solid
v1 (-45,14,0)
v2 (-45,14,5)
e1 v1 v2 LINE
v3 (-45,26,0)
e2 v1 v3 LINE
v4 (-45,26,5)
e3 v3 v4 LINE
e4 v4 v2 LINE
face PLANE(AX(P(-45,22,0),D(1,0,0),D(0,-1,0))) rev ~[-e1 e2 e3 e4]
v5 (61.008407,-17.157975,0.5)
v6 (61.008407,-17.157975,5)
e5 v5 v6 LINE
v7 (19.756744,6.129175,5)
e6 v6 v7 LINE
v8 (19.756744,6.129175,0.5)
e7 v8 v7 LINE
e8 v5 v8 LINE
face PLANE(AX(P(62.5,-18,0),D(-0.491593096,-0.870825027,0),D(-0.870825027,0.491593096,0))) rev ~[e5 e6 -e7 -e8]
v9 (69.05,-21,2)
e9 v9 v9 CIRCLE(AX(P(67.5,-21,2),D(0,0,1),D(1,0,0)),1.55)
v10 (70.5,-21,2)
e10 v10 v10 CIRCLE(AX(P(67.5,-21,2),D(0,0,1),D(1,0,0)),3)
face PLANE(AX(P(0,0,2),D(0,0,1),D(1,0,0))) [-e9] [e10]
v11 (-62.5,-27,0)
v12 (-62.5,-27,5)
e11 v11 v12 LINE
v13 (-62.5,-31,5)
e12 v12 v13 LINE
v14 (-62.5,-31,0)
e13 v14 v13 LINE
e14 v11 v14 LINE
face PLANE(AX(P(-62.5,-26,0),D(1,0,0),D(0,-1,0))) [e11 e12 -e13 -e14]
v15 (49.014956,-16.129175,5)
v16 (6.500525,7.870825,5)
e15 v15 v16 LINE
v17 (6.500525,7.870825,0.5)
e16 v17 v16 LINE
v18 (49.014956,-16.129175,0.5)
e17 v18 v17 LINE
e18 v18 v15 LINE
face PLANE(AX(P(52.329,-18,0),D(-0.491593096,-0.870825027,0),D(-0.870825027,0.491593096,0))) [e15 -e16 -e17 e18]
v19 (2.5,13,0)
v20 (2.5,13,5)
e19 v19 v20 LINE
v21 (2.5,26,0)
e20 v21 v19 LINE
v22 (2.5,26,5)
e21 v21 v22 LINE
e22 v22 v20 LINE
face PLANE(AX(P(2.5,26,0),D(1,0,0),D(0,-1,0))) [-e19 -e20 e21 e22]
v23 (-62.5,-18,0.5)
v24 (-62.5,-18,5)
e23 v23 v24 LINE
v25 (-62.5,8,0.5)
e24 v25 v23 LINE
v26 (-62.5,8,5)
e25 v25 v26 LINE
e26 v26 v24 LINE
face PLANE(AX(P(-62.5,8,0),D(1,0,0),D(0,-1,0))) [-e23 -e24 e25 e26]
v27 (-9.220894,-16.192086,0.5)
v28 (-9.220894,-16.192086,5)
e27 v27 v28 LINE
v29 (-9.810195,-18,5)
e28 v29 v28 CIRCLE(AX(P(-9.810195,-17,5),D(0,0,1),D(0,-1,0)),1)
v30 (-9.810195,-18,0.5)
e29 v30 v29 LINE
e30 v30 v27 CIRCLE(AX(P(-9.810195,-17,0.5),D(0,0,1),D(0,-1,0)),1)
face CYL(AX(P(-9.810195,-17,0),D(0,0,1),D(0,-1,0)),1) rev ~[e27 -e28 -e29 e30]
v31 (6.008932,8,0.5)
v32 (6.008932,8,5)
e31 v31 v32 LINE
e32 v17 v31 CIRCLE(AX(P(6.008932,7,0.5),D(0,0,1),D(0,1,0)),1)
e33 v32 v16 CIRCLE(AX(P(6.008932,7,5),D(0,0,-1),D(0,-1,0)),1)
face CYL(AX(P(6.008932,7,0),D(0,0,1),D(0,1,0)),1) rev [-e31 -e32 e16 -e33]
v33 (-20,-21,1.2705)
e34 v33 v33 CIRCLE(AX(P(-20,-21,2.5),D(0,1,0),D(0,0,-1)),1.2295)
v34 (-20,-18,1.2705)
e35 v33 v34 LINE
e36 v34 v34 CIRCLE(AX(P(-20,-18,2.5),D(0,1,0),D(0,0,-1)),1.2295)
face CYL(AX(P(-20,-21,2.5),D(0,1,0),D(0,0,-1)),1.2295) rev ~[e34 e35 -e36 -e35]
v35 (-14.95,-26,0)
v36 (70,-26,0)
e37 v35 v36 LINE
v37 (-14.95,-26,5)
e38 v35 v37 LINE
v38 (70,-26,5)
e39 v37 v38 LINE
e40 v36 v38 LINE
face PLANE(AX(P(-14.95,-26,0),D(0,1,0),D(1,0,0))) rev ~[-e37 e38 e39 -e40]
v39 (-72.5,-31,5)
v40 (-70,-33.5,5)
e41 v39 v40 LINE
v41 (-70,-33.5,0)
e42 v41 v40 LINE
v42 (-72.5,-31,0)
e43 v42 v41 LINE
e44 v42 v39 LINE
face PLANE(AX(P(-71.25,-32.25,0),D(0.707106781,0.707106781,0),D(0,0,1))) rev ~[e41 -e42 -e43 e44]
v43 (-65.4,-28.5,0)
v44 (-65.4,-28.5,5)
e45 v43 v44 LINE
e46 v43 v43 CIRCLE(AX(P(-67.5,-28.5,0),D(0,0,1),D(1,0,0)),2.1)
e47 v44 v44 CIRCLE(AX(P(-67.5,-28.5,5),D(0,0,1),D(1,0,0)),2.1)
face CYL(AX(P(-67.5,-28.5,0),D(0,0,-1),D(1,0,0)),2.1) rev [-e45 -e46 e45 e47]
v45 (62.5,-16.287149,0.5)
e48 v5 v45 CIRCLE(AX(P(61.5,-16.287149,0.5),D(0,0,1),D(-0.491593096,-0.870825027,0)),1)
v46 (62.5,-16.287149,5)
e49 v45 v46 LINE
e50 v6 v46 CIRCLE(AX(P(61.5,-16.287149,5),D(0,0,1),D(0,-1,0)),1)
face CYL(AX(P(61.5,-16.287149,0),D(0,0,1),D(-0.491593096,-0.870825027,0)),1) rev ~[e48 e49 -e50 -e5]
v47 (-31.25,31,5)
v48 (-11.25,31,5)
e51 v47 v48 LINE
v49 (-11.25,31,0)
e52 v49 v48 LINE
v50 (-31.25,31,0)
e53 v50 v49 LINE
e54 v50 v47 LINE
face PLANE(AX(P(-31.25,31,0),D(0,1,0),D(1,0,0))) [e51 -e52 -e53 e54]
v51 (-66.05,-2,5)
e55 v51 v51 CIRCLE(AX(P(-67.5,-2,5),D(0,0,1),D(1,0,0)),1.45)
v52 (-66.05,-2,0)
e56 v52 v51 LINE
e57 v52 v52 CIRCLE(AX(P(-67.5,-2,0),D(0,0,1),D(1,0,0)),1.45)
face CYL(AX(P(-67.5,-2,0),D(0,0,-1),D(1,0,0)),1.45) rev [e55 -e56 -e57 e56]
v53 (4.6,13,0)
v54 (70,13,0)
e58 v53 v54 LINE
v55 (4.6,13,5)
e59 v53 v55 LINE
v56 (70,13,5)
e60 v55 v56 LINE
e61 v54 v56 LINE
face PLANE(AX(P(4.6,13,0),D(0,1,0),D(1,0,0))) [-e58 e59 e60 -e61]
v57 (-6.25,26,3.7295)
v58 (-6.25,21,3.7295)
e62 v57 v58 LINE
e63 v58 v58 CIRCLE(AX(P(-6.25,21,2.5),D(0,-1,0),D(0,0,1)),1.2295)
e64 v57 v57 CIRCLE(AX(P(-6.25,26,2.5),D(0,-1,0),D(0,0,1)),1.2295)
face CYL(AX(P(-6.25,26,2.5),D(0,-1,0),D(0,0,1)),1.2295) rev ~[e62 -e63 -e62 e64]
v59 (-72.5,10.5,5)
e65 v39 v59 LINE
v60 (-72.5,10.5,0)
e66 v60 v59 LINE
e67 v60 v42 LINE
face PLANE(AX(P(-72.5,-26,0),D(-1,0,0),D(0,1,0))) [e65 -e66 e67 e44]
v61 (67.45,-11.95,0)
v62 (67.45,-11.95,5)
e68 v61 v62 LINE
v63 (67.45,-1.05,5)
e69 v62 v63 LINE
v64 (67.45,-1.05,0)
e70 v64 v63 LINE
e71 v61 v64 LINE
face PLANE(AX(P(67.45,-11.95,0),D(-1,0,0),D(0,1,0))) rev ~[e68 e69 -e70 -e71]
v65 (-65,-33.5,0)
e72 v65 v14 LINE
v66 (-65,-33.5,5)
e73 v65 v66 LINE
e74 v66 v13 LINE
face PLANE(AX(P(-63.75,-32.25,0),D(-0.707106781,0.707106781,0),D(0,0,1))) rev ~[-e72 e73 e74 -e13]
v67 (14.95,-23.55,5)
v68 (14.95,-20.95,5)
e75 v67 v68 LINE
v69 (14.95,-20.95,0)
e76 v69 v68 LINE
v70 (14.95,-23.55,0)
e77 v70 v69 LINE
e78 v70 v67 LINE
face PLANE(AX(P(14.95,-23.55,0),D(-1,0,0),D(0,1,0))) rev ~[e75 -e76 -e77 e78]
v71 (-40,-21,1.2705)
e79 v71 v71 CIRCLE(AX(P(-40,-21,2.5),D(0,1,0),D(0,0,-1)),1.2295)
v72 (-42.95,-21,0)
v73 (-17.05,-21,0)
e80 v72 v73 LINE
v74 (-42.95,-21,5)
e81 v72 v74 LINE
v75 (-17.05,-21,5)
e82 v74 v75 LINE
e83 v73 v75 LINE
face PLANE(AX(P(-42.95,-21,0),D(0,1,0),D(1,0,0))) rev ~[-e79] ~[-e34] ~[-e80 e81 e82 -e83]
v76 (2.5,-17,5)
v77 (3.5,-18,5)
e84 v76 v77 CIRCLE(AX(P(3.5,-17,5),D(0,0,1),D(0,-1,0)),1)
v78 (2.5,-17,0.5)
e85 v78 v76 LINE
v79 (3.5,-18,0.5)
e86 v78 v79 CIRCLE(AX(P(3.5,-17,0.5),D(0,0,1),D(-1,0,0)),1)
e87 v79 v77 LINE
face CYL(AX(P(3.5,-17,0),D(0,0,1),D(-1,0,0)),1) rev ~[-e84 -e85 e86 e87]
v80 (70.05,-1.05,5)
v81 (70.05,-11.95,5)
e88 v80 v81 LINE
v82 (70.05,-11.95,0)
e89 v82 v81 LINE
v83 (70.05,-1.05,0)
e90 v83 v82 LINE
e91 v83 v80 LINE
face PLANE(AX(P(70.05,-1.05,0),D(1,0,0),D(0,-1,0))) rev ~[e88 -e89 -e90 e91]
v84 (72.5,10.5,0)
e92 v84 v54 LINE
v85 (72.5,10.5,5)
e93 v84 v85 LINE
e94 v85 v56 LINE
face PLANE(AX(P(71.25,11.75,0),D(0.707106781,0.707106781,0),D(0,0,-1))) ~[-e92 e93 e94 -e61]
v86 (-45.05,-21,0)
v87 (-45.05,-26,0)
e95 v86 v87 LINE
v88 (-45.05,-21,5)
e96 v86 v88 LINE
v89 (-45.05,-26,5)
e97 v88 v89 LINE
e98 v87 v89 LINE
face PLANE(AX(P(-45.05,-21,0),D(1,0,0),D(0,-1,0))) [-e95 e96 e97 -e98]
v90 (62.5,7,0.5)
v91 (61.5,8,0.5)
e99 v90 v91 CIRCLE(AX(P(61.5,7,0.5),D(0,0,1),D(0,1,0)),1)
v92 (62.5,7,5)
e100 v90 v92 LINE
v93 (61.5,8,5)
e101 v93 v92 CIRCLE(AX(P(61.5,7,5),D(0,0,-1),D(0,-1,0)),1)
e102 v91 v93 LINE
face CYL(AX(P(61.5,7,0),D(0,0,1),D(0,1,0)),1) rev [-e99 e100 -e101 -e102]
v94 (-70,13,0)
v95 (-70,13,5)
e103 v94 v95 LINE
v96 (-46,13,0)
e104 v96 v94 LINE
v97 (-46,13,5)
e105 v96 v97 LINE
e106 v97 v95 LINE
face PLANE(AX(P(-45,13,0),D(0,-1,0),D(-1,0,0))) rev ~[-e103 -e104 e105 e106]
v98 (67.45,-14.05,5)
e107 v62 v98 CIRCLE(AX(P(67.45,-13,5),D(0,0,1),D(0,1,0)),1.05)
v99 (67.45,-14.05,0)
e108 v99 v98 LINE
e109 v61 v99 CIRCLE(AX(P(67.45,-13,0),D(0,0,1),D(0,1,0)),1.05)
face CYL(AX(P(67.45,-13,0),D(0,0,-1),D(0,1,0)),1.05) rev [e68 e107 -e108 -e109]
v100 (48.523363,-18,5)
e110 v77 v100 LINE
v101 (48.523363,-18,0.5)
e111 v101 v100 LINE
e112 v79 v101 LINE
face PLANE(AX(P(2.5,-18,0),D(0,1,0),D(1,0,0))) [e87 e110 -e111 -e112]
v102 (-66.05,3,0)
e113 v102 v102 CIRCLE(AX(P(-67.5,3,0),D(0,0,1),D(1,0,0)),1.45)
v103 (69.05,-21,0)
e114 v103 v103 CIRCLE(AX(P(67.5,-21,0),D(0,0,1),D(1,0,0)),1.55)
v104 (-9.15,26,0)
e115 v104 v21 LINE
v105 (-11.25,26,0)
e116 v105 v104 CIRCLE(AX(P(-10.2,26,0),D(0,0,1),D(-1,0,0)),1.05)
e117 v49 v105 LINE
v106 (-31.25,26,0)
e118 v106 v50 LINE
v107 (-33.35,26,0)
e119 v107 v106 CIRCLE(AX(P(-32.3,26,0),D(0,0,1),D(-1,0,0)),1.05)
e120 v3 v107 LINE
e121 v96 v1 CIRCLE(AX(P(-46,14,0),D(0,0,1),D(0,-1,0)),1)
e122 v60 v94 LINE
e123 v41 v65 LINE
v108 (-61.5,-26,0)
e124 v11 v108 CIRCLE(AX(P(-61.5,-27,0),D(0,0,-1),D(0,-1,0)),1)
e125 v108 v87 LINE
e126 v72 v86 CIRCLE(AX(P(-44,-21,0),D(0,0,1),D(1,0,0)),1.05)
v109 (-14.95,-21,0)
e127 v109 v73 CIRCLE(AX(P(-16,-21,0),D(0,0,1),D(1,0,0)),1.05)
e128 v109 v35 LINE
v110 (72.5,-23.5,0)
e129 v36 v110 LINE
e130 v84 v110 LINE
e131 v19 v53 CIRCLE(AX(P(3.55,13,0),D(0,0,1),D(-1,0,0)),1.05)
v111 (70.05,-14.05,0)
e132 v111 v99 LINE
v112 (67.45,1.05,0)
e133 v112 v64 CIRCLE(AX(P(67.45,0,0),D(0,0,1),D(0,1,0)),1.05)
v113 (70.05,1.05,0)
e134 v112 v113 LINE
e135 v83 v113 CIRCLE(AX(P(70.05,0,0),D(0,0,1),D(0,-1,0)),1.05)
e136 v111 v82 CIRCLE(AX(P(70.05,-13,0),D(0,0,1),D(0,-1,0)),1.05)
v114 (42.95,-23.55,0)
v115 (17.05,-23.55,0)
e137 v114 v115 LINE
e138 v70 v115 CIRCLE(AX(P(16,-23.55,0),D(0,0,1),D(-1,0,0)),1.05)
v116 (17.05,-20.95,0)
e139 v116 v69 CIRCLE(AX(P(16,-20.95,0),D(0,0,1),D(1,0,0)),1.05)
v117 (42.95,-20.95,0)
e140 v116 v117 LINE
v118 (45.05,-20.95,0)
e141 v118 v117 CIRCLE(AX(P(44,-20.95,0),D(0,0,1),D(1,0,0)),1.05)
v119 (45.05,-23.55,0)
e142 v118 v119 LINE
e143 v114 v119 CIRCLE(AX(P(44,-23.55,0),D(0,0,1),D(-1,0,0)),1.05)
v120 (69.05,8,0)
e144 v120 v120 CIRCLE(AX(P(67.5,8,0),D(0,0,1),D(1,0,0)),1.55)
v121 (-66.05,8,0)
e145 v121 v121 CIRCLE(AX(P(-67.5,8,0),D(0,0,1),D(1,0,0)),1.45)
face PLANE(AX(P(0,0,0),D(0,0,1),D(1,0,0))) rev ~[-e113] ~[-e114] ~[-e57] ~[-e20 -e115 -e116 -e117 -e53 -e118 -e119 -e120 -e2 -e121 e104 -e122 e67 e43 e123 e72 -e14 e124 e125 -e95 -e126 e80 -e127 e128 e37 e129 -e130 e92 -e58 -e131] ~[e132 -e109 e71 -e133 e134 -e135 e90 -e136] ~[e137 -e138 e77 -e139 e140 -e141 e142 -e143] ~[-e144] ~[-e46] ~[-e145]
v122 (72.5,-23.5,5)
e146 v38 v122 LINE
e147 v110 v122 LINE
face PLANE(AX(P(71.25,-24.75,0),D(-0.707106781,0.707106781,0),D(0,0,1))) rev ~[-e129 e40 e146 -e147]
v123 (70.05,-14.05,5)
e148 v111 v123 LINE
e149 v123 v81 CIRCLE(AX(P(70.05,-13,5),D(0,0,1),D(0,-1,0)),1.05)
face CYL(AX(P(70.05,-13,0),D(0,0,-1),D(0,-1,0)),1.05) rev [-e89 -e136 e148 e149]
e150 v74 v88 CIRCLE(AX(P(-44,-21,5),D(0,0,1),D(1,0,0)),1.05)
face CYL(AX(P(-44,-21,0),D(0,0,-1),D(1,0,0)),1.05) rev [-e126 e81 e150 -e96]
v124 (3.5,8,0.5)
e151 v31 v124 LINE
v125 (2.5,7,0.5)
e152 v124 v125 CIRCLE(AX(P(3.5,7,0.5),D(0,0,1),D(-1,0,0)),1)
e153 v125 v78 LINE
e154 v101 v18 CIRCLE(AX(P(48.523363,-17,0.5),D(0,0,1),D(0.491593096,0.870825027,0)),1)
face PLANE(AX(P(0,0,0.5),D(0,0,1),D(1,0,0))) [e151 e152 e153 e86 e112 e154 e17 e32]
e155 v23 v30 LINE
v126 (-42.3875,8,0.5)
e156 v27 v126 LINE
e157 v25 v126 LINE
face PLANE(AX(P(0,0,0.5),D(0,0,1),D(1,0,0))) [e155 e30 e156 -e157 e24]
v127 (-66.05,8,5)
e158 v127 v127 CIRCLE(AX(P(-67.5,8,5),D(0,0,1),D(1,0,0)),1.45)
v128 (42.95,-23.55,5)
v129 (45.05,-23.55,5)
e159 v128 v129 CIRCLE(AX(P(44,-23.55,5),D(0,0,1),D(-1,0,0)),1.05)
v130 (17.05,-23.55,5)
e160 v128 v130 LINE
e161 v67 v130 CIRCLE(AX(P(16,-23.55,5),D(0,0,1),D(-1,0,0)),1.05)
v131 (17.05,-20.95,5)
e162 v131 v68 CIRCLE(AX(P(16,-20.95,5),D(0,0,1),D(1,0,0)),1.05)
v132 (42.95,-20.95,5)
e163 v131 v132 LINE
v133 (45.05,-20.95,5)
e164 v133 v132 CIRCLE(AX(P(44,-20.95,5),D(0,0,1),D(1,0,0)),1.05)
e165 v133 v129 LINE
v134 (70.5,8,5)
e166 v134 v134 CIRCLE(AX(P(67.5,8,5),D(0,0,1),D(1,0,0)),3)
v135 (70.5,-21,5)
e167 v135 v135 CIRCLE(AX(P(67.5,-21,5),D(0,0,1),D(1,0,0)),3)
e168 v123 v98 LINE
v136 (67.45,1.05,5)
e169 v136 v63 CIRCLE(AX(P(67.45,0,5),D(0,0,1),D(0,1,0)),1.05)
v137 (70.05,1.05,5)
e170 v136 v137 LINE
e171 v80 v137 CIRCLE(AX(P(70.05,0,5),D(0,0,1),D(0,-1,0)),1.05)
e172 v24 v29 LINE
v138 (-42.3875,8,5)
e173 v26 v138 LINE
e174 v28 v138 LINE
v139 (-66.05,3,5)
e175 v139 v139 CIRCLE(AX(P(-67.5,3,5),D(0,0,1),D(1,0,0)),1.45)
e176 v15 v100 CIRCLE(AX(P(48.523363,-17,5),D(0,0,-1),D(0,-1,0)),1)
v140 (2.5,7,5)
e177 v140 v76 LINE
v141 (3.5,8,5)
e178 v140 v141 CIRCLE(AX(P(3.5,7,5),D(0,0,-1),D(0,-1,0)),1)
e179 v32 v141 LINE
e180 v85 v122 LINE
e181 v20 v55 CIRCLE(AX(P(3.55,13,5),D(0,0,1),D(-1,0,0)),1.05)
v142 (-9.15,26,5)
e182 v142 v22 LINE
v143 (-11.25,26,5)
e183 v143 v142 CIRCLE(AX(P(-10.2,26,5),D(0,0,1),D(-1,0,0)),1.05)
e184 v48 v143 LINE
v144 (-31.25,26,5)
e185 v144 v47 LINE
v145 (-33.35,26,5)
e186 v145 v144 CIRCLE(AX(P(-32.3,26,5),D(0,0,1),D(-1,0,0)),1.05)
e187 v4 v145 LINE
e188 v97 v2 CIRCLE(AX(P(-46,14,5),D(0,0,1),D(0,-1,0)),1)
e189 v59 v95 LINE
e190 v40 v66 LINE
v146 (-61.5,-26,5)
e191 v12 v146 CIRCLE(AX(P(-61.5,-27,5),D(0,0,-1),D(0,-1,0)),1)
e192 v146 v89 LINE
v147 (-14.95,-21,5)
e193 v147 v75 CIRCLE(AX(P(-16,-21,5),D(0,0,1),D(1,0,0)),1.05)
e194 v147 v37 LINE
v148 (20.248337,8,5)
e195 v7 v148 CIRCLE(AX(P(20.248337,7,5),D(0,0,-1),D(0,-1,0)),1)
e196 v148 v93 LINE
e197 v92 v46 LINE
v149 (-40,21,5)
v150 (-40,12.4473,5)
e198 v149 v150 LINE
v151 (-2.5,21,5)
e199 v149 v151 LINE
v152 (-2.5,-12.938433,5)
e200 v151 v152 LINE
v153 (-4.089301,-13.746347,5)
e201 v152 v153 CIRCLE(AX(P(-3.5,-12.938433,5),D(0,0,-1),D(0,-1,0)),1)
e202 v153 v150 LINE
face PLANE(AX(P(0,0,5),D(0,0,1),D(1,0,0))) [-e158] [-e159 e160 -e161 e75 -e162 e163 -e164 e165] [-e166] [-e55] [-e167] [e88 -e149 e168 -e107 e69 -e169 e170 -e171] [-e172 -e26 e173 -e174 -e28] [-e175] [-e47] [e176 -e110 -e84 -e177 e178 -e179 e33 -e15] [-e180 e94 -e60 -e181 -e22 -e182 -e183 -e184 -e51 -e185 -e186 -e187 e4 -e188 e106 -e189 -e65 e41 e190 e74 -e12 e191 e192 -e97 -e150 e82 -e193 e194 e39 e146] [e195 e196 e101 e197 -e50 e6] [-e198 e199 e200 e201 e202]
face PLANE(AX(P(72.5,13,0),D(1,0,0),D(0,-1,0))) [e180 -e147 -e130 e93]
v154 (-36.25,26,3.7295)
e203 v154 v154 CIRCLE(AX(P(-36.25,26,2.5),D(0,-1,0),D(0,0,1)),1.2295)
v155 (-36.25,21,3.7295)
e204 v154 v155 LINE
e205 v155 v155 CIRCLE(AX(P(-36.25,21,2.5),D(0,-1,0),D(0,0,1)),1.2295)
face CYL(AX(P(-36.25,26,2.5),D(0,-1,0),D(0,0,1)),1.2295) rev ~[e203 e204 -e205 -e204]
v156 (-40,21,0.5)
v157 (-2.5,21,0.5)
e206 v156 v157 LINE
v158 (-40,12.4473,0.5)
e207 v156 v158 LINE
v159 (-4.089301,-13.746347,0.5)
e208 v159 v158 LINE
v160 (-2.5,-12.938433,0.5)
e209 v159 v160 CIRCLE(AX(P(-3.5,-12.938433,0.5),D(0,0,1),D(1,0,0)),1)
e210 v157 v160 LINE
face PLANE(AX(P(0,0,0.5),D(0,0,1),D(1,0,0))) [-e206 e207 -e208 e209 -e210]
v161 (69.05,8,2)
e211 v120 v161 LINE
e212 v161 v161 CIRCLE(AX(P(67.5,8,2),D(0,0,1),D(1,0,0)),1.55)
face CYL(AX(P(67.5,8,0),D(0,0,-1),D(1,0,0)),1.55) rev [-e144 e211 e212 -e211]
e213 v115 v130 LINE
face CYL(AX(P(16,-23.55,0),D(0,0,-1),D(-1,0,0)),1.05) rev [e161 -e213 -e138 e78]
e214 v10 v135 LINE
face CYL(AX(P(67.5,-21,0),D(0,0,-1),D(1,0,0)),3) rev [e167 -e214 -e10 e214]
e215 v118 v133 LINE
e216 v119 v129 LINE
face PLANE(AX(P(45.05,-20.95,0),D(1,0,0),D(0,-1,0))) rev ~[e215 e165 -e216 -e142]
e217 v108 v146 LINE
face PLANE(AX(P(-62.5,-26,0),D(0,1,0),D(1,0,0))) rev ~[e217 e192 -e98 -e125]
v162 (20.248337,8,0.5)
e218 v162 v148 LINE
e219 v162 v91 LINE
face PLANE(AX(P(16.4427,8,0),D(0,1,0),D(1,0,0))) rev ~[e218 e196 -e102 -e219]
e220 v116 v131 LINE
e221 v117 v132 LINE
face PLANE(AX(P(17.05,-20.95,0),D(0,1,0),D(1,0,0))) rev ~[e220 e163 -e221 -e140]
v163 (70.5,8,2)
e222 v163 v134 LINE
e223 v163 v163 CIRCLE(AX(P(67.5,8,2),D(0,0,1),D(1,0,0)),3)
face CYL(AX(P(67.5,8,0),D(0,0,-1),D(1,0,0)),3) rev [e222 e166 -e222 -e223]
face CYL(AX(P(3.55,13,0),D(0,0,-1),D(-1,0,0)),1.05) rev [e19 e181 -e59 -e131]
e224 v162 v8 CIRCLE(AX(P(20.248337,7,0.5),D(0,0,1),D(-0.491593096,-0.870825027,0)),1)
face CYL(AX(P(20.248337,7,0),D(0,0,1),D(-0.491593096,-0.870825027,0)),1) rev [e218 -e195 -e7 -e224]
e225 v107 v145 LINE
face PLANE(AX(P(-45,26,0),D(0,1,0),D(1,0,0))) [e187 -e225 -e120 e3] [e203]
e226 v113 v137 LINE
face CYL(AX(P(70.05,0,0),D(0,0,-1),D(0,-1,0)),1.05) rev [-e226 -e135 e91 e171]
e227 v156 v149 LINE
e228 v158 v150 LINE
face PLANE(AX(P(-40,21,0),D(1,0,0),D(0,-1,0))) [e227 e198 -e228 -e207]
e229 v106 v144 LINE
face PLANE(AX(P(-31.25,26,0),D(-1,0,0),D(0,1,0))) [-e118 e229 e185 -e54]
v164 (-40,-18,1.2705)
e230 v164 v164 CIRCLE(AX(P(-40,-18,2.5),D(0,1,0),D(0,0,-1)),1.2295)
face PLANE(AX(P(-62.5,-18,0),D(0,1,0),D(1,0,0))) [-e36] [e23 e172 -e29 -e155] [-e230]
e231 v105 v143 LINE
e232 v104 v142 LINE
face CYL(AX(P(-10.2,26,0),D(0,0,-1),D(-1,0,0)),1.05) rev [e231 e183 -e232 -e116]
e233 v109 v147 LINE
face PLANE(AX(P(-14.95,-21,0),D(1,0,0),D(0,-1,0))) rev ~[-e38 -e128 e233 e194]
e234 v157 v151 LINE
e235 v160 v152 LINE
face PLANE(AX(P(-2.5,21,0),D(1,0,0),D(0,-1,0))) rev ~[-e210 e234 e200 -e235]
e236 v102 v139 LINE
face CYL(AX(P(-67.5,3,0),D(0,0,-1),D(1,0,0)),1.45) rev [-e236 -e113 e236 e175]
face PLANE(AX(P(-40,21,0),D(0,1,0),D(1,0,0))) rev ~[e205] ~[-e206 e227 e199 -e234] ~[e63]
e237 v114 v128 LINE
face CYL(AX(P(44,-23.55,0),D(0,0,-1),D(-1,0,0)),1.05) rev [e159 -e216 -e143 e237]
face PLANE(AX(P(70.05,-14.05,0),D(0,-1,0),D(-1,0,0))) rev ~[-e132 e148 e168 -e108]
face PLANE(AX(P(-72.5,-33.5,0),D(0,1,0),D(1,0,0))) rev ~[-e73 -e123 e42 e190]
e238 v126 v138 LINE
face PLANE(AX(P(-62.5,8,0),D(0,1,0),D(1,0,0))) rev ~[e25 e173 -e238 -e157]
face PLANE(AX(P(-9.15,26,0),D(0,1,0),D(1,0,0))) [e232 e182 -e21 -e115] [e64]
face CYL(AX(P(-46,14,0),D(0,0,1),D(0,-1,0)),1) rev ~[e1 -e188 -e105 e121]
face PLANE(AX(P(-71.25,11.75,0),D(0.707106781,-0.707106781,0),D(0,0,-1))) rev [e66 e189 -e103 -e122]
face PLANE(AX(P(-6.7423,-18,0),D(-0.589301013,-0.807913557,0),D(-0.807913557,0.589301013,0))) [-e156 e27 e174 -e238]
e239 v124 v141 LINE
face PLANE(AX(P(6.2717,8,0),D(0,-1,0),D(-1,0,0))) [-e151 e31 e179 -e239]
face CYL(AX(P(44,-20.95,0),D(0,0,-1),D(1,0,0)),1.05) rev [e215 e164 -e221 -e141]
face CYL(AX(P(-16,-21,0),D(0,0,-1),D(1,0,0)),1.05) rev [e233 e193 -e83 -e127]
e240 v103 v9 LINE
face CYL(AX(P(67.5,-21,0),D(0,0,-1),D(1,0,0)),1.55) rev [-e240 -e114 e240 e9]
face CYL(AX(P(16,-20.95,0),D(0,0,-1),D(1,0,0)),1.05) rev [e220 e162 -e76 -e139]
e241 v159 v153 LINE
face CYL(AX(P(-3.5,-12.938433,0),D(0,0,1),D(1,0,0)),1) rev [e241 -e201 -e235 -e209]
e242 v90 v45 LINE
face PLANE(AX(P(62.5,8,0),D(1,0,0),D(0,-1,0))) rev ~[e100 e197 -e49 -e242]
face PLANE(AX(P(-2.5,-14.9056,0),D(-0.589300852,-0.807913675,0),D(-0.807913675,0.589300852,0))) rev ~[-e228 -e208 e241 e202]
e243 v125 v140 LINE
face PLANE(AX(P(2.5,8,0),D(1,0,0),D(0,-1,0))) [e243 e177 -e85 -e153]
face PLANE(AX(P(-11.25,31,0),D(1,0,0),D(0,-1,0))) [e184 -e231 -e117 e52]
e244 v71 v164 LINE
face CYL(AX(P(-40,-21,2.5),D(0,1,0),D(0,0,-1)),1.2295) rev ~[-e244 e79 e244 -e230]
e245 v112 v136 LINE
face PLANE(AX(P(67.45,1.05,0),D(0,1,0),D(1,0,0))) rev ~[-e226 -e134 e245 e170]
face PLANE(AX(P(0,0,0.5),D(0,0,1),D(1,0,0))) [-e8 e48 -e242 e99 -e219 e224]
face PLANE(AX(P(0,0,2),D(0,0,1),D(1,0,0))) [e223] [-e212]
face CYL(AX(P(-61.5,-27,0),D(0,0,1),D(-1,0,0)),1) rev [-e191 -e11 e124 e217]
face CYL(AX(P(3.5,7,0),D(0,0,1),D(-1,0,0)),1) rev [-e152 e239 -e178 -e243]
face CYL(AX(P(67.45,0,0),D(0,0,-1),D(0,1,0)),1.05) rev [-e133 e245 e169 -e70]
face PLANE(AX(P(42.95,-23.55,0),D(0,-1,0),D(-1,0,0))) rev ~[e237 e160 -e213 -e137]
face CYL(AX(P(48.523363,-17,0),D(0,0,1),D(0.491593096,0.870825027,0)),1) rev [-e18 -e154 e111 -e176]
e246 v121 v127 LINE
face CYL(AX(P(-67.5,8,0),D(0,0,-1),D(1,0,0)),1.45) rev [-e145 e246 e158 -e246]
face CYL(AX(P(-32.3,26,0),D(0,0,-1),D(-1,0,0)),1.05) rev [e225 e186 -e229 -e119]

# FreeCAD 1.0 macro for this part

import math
import FreeCAD as App
import Part
import Sketcher

V = App.Vector
Q = App.Units.Quantity


def edges_at(feature, points):
    """Names of the edges that pass closest to the given points."""
    edges = feature.Shape.Edges
    near = lambda p: min(range(len(edges)), key=lambda i: edges[i].distToShape(Part.Vertex(*p))[0])
    return sorted({f"Edge{near(p) + 1}" for p in points})

doc = App.newDocument("Part")
body = doc.addObject("PartDesign::Body", "Body")

sketch1 = body.newObject("Sketcher::SketchObject", "Sketch")
sketch1.AttachmentSupport = (doc.getObject("XY_Plane"), [""])
sketch1.MapMode = "FlatFace"
sketch1.addGeometry(Part.LineSegment(V(-72.5, 13, 0), V(-72.5, -33.5, 0)), False)
sketch1.addGeometry(Part.LineSegment(V(-72.5, -33.5, 0), V(-62.5, -33.5, 0)), False)
sketch1.addGeometry(Part.LineSegment(V(-62.5, -33.5, 0), V(-62.5, -26, 0)), False)
sketch1.addGeometry(Part.LineSegment(V(-62.5, -26, 0), V(-45, -26, 0)), False)
sketch1.addGeometry(Part.LineSegment(V(-45, -26, 0), V(-45, -21, 0)), False)
sketch1.addGeometry(Part.ArcOfCircle(Part.Circle(V(-44, -21, 0), V(0, 0, 1), 1), math.radians(0), math.radians(180)), False)
sketch1.addGeometry(Part.LineSegment(V(-43, -21, 0), V(-17.1, -21, 0)), False)
sketch1.addGeometry(Part.ArcOfCircle(Part.Circle(V(-16, -21, 0), V(0, 0, 1), 1.1), math.radians(0), math.radians(180)), False)
sketch1.addGeometry(Part.LineSegment(V(-14.9, -21, 0), V(-14.9, -26, 0)), False)
sketch1.addGeometry(Part.LineSegment(V(-14.9, -26, 0), V(72.5, -26, 0)), False)
sketch1.addGeometry(Part.LineSegment(V(72.5, -26, 0), V(72.5, 13, 0)), False)
sketch1.addGeometry(Part.LineSegment(V(72.5, 13, 0), V(4.6, 13, 0)), False)
sketch1.addGeometry(Part.ArcOfCircle(Part.Circle(V(3.5, 13, 0), V(0, 0, 1), 1), math.radians(180), math.radians(360)), False)
sketch1.addGeometry(Part.LineSegment(V(2.5, 13, 0), V(2.5, 26, 0)), False)
sketch1.addGeometry(Part.LineSegment(V(2.5, 26, 0), V(-9.2, 26, 0)), False)
sketch1.addGeometry(Part.ArcOfCircle(Part.Circle(V(-10.2, 26, 0), V(0, 0, 1), 1.1), math.radians(180), math.radians(360)), False)
sketch1.addGeometry(Part.LineSegment(V(-11.2, 26, 0), V(-11.2, 31, 0)), False)
sketch1.addGeometry(Part.LineSegment(V(-11.2, 31, 0), V(-31.2, 31, 0)), False)
sketch1.addGeometry(Part.LineSegment(V(-31.2, 31, 0), V(-31.2, 26, 0)), False)
sketch1.addGeometry(Part.ArcOfCircle(Part.Circle(V(-32.3, 26, 0), V(0, 0, 1), 1.1), math.radians(180), math.radians(360)), False)
sketch1.addGeometry(Part.LineSegment(V(-33.4, 26, 0), V(-45, 26, 0)), False)
sketch1.addGeometry(Part.LineSegment(V(-45, 26, 0), V(-45, 13, 0)), False)
sketch1.addGeometry(Part.LineSegment(V(-45, 13, 0), V(-72.5, 13, 0)), False)
sketch1.addGeometry(Part.Circle(V(-67.5, -28.5, 0), V(0, 0, 1), 2.1), False)
sketch1.addGeometry(Part.Circle(V(-67.5, -2, 0), V(0, 0, 1), 1.4), False)
sketch1.addGeometry(Part.LineSegment(V(-6.7, -18, 0), V(-62.5, -18, 0)), False)
sketch1.addGeometry(Part.LineSegment(V(-62.5, -18, 0), V(-62.5, 8, 0)), False)
sketch1.addGeometry(Part.LineSegment(V(-62.5, 8, 0), V(-42.4, 8, 0)), False)
sketch1.addGeometry(Part.LineSegment(V(-42.4, 8, 0), V(-6.7, -18, 0)), False)
sketch1.addGeometry(Part.LineSegment(V(14.9, -23.6, 0), V(14.9, -20.9, 0)), False)
sketch1.addGeometry(Part.ArcOfCircle(Part.Circle(V(16, -20.9, 0), V(0, 0, 1), 1.1), math.radians(0), math.radians(180)), False)
sketch1.addGeometry(Part.LineSegment(V(17.1, -20.9, 0), V(43, -20.9, 0)), False)
sketch1.addGeometry(Part.ArcOfCircle(Part.Circle(V(44, -20.9, 0), V(0, 0, 1), 1), math.radians(0), math.radians(180)), False)
sketch1.addGeometry(Part.LineSegment(V(45, -20.9, 0), V(45, -23.6, 0)), False)
sketch1.addGeometry(Part.ArcOfCircle(Part.Circle(V(44, -23.6, 0), V(0, 0, 1), 1), math.radians(180), math.radians(360)), False)
sketch1.addGeometry(Part.LineSegment(V(43, -23.6, 0), V(17.1, -23.6, 0)), False)
sketch1.addGeometry(Part.ArcOfCircle(Part.Circle(V(16, -23.6, 0), V(0, 0, 1), 1.1), math.radians(180), math.radians(360)), False)
sketch1.addGeometry(Part.Circle(V(67.5, -21, 0), V(0, 0, 1), 3), False)
sketch1.addGeometry(Part.LineSegment(V(2.5, -18, 0), V(2.5, 8, 0)), False)
sketch1.addGeometry(Part.LineSegment(V(2.5, 8, 0), V(6.3, 8, 0)), False)
sketch1.addGeometry(Part.LineSegment(V(6.3, 8, 0), V(52.3, -18, 0)), False)
sketch1.addGeometry(Part.LineSegment(V(52.3, -18, 0), V(2.5, -18, 0)), False)
sketch1.addGeometry(Part.LineSegment(V(62.5, -18, 0), V(16.4, 8, 0)), False)
sketch1.addGeometry(Part.LineSegment(V(16.4, 8, 0), V(62.5, 8, 0)), False)
sketch1.addGeometry(Part.LineSegment(V(62.5, 8, 0), V(62.5, -18, 0)), False)
sketch1.addGeometry(Part.ArcOfCircle(Part.Circle(V(67.5, 0, 0), V(0, 0, 1), 1.1), math.radians(90), math.radians(270)), False)
sketch1.addGeometry(Part.LineSegment(V(67.5, 1.1, 0), V(70, 1.1, 0)), False)
sketch1.addGeometry(Part.ArcOfCircle(Part.Circle(V(70, 0, 0), V(0, 0, 1), 1.1), math.radians(-90), math.radians(90)), False)
sketch1.addGeometry(Part.LineSegment(V(70, -1.1, 0), V(70, -11.9, 0)), False)
sketch1.addGeometry(Part.ArcOfCircle(Part.Circle(V(70, -13, 0), V(0, 0, 1), 1.1), math.radians(-90), math.radians(90)), False)
sketch1.addGeometry(Part.LineSegment(V(70, -14.1, 0), V(67.5, -14.1, 0)), False)
sketch1.addGeometry(Part.ArcOfCircle(Part.Circle(V(67.5, -13, 0), V(0, 0, 1), 1.1), math.radians(90), math.radians(270)), False)
sketch1.addGeometry(Part.LineSegment(V(67.5, -11.9, 0), V(67.5, -1.1, 0)), False)
sketch1.addGeometry(Part.Circle(V(-67.5, 3, 0), V(0, 0, 1), 1.4), False)
sketch1.addGeometry(Part.Circle(V(-67.5, 8, 0), V(0, 0, 1), 1.4), False)
sketch1.addGeometry(Part.LineSegment(V(-40, 21, 0), V(-2.5, 21, 0)), False)
sketch1.addGeometry(Part.LineSegment(V(-2.5, 21, 0), V(-2.5, -14.9, 0)), False)
sketch1.addGeometry(Part.LineSegment(V(-2.5, -14.9, 0), V(-40, 12.4, 0)), False)
sketch1.addGeometry(Part.LineSegment(V(-40, 12.4, 0), V(-40, 21, 0)), False)
sketch1.addGeometry(Part.Circle(V(67.5, 8, 0), V(0, 0, 1), 3), False)
sketch1.addConstraint(Sketcher.Constraint("Coincident", 0, 2, 1, 1))
sketch1.addConstraint(Sketcher.Constraint("Coincident", 1, 2, 2, 1))
sketch1.addConstraint(Sketcher.Constraint("Coincident", 2, 2, 3, 1))
sketch1.addConstraint(Sketcher.Constraint("Coincident", 3, 2, 4, 1))
sketch1.addConstraint(Sketcher.Constraint("Tangent", 4, 2, 5, 2))
sketch1.addConstraint(Sketcher.Constraint("Coincident", 5, 1, 6, 1))
sketch1.addConstraint(Sketcher.Constraint("Coincident", 6, 2, 7, 2))
sketch1.addConstraint(Sketcher.Constraint("Tangent", 7, 1, 8, 1))
sketch1.addConstraint(Sketcher.Constraint("Coincident", 8, 2, 9, 1))
sketch1.addConstraint(Sketcher.Constraint("Coincident", 9, 2, 10, 1))
sketch1.addConstraint(Sketcher.Constraint("Coincident", 10, 2, 11, 1))
sketch1.addConstraint(Sketcher.Constraint("Coincident", 11, 2, 12, 2))
sketch1.addConstraint(Sketcher.Constraint("Tangent", 12, 1, 13, 1))
sketch1.addConstraint(Sketcher.Constraint("Coincident", 13, 2, 14, 1))
sketch1.addConstraint(Sketcher.Constraint("Coincident", 14, 2, 15, 2))
sketch1.addConstraint(Sketcher.Constraint("Tangent", 15, 1, 16, 1))
sketch1.addConstraint(Sketcher.Constraint("Coincident", 16, 2, 17, 1))
sketch1.addConstraint(Sketcher.Constraint("Coincident", 17, 2, 18, 1))
sketch1.addConstraint(Sketcher.Constraint("Tangent", 18, 2, 19, 2))
sketch1.addConstraint(Sketcher.Constraint("Coincident", 19, 1, 20, 1))
sketch1.addConstraint(Sketcher.Constraint("Coincident", 20, 2, 21, 1))
sketch1.addConstraint(Sketcher.Constraint("Coincident", 21, 2, 22, 1))
sketch1.addConstraint(Sketcher.Constraint("Coincident", 22, 2, 0, 1))
sketch1.addConstraint(Sketcher.Constraint("Coincident", 25, 2, 26, 1))
sketch1.addConstraint(Sketcher.Constraint("Coincident", 26, 2, 27, 1))
sketch1.addConstraint(Sketcher.Constraint("Coincident", 27, 2, 28, 1))
sketch1.addConstraint(Sketcher.Constraint("Coincident", 28, 2, 25, 1))
sketch1.addConstraint(Sketcher.Constraint("Tangent", 29, 2, 30, 2))
sketch1.addConstraint(Sketcher.Constraint("Coincident", 30, 1, 31, 1))
sketch1.addConstraint(Sketcher.Constraint("Coincident", 31, 2, 32, 2))
sketch1.addConstraint(Sketcher.Constraint("Tangent", 32, 1, 33, 1))
sketch1.addConstraint(Sketcher.Constraint("Tangent", 33, 2, 34, 2))
sketch1.addConstraint(Sketcher.Constraint("Coincident", 34, 1, 35, 1))
sketch1.addConstraint(Sketcher.Constraint("Coincident", 35, 2, 36, 2))
sketch1.addConstraint(Sketcher.Constraint("Tangent", 36, 1, 29, 1))
sketch1.addConstraint(Sketcher.Constraint("Coincident", 38, 2, 39, 1))
sketch1.addConstraint(Sketcher.Constraint("Coincident", 39, 2, 40, 1))
sketch1.addConstraint(Sketcher.Constraint("Coincident", 40, 2, 41, 1))
sketch1.addConstraint(Sketcher.Constraint("Coincident", 41, 2, 38, 1))
sketch1.addConstraint(Sketcher.Constraint("Coincident", 42, 2, 43, 1))
sketch1.addConstraint(Sketcher.Constraint("Coincident", 43, 2, 44, 1))
sketch1.addConstraint(Sketcher.Constraint("Coincident", 44, 2, 42, 1))
sketch1.addConstraint(Sketcher.Constraint("Tangent", 45, 1, 46, 1))
sketch1.addConstraint(Sketcher.Constraint("Tangent", 46, 2, 47, 2))
sketch1.addConstraint(Sketcher.Constraint("Coincident", 47, 1, 48, 1))
sketch1.addConstraint(Sketcher.Constraint("Coincident", 48, 2, 49, 2))
sketch1.addConstraint(Sketcher.Constraint("Tangent", 49, 1, 50, 1))
sketch1.addConstraint(Sketcher.Constraint("Tangent", 50, 2, 51, 2))
sketch1.addConstraint(Sketcher.Constraint("Coincident", 51, 1, 52, 1))
sketch1.addConstraint(Sketcher.Constraint("Coincident", 52, 2, 45, 2))
sketch1.addConstraint(Sketcher.Constraint("Coincident", 55, 2, 56, 1))
sketch1.addConstraint(Sketcher.Constraint("Coincident", 56, 2, 57, 1))
sketch1.addConstraint(Sketcher.Constraint("Coincident", 57, 2, 58, 1))
sketch1.addConstraint(Sketcher.Constraint("Coincident", 58, 2, 55, 1))
sketch1.addConstraint(Sketcher.Constraint("Vertical", 0))
sketch1.addConstraint(Sketcher.Constraint("Horizontal", 1))
sketch1.addConstraint(Sketcher.Constraint("Vertical", 2))
sketch1.addConstraint(Sketcher.Constraint("Horizontal", 3))
sketch1.addConstraint(Sketcher.Constraint("Vertical", 4))
sketch1.addConstraint(Sketcher.Constraint("Horizontal", 6))
sketch1.addConstraint(Sketcher.Constraint("Vertical", 8))
sketch1.addConstraint(Sketcher.Constraint("Horizontal", 9))
sketch1.addConstraint(Sketcher.Constraint("Vertical", 10))
sketch1.addConstraint(Sketcher.Constraint("Horizontal", 11))
sketch1.addConstraint(Sketcher.Constraint("Vertical", 13))
sketch1.addConstraint(Sketcher.Constraint("Horizontal", 14))
sketch1.addConstraint(Sketcher.Constraint("Vertical", 16))
sketch1.addConstraint(Sketcher.Constraint("Horizontal", 17))
sketch1.addConstraint(Sketcher.Constraint("Vertical", 18))
sketch1.addConstraint(Sketcher.Constraint("Horizontal", 20))
sketch1.addConstraint(Sketcher.Constraint("Vertical", 21))
sketch1.addConstraint(Sketcher.Constraint("Horizontal", 22))
sketch1.addConstraint(Sketcher.Constraint("Horizontal", 25))
sketch1.addConstraint(Sketcher.Constraint("Vertical", 26))
sketch1.addConstraint(Sketcher.Constraint("Horizontal", 27))
sketch1.addConstraint(Sketcher.Constraint("Vertical", 29))
sketch1.addConstraint(Sketcher.Constraint("Horizontal", 31))
sketch1.addConstraint(Sketcher.Constraint("Vertical", 33))
sketch1.addConstraint(Sketcher.Constraint("Horizontal", 35))
sketch1.addConstraint(Sketcher.Constraint("Vertical", 38))
sketch1.addConstraint(Sketcher.Constraint("Horizontal", 39))
sketch1.addConstraint(Sketcher.Constraint("Horizontal", 41))
sketch1.addConstraint(Sketcher.Constraint("Horizontal", 43))
sketch1.addConstraint(Sketcher.Constraint("Vertical", 44))
sketch1.addConstraint(Sketcher.Constraint("Horizontal", 46))
sketch1.addConstraint(Sketcher.Constraint("Vertical", 48))
sketch1.addConstraint(Sketcher.Constraint("Horizontal", 50))
sketch1.addConstraint(Sketcher.Constraint("Vertical", 52))
sketch1.addConstraint(Sketcher.Constraint("Horizontal", 55))
sketch1.addConstraint(Sketcher.Constraint("Vertical", 56))
sketch1.addConstraint(Sketcher.Constraint("Vertical", 58))
sketch1.addConstraint(Sketcher.Constraint("Equal", 5, 7))
sketch1.addConstraint(Sketcher.Constraint("Equal", 7, 12))
sketch1.addConstraint(Sketcher.Constraint("Equal", 12, 15))
sketch1.addConstraint(Sketcher.Constraint("Equal", 15, 19))
sketch1.addConstraint(Sketcher.Constraint("Equal", 19, 30))
sketch1.addConstraint(Sketcher.Constraint("Equal", 30, 32))
sketch1.addConstraint(Sketcher.Constraint("Equal", 32, 34))
sketch1.addConstraint(Sketcher.Constraint("Equal", 34, 36))
sketch1.addConstraint(Sketcher.Constraint("Equal", 36, 45))
sketch1.addConstraint(Sketcher.Constraint("Equal", 45, 47))
sketch1.addConstraint(Sketcher.Constraint("Equal", 47, 49))
sketch1.addConstraint(Sketcher.Constraint("Equal", 49, 51))
sketch1.addConstraint(Sketcher.Constraint("Equal", 24, 53))
sketch1.addConstraint(Sketcher.Constraint("Equal", 53, 54))
sketch1.addConstraint(Sketcher.Constraint("Equal", 37, 59))
sketch1.addConstraint(Sketcher.Constraint("Symmetric", 54, 3, 59, 3, -2))
sketch1.addConstraint(Sketcher.Constraint("Symmetric", 10, 2, 22, 2, -2))
sketch1.addConstraint(Sketcher.Constraint("Symmetric", 26, 2, 43, 2, -2))
sketch1.addConstraint(Sketcher.Constraint("Symmetric", 46, 2, 47, 1, -1))
sketch1.addConstraint(Sketcher.Constraint("Parallel", 40, 42))
sketch1.addConstraint(Sketcher.Constraint("Parallel", 28, 57))
sketch1.addConstraint(Sketcher.Constraint("Horizontal", 5, 3, 7, 3))
sketch1.addConstraint(Sketcher.Constraint("Horizontal", 15, 3, 19, 3))
sketch1.addConstraint(Sketcher.Constraint("Horizontal", 30, 3, 32, 3))
sketch1.addConstraint(Sketcher.Constraint("Horizontal", 34, 3, 36, 3))
sketch1.addConstraint(Sketcher.Constraint("Horizontal", 7, 3, 37, 3))
sketch1.addConstraint(Sketcher.Constraint("Horizontal", 4, 2, 5, 1))
sketch1.addConstraint(Sketcher.Constraint("Horizontal", 3, 2, 8, 2))
sketch1.addConstraint(Sketcher.Constraint("Horizontal", 12, 3, 10, 2))
sketch1.addConstraint(Sketcher.Constraint("Horizontal", 19, 3, 13, 2))
sketch1.addConstraint(Sketcher.Constraint("Horizontal", 18, 2, 19, 1))
sketch1.addConstraint(Sketcher.Constraint("Horizontal", 59, 3, 26, 2))
sketch1.addConstraint(Sketcher.Constraint("Horizontal", 29, 2, 30, 1))
sketch1.addConstraint(Sketcher.Constraint("Horizontal", 33, 2, 34, 1))
sketch1.addConstraint(Sketcher.Constraint("Horizontal", 27, 2, 38, 2))
sketch1.addConstraint(Sketcher.Constraint("Horizontal", 28, 2, 40, 2))
sketch1.addConstraint(Sketcher.Constraint("Horizontal", 41, 2, 44, 2))
sketch1.addConstraint(Sketcher.Constraint("Vertical", 23, 3, 24, 3))
sketch1.addConstraint(Sketcher.Constraint("Vertical", 47, 3, 49, 3))
sketch1.addConstraint(Sketcher.Constraint("Vertical", 45, 3, 51, 3))
sketch1.addConstraint(Sketcher.Constraint("Vertical", 24, 3, 53, 3))
sketch1.addConstraint(Sketcher.Constraint("Vertical", 53, 3, 54, 3))
sketch1.addConstraint(Sketcher.Constraint("Vertical", 37, 3, 59, 3))
sketch1.addConstraint(Sketcher.Constraint("Vertical", 2, 2, 25, 2))
sketch1.addConstraint(Sketcher.Constraint("Vertical", 13, 2, 38, 2))
sketch1.addConstraint(Sketcher.Constraint("Vertical", 50, 2, 51, 1))
sketch1.addConstraint(Sketcher.Constraint("Equal", 14, 20))
sketch1.addConstraint(Sketcher.Constraint("Equal", 6, 31))
sketch1.addConstraint(Sketcher.Constraint("Equal", 8, 16))
sketch1.addConstraint(Sketcher.Constraint("Equal", 50, 29))
sketch1.addConstraint(Sketcher.Constraint("Diameter", 37, Q("6 mm")))
sketch1.addConstraint(Sketcher.Constraint("Diameter", 23, Q("4.2 mm")))
sketch1.addConstraint(Sketcher.Constraint("Diameter", 24, Q("2.9 mm")))
sketch1.addConstraint(Sketcher.Constraint("DistanceX", 17, 2, 17, 1, Q("20 mm")))
sketch1.addConstraint(Sketcher.Constraint("DistanceY", 4, 1, 4, 2, Q("5 mm")))
sketch1.addConstraint(Sketcher.Constraint("DistanceY", 10, 1, 10, 2, Q("39 mm")))
sketch1.addConstraint(Sketcher.Constraint("DistanceY", 13, 1, 13, 2, Q("13 mm")))
sketch1.addConstraint(Sketcher.Constraint("Radius", 5, Q("1.05 mm")))
sketch1.addConstraint(Sketcher.Constraint("DistanceX", 22, 2, 22, 1, Q("27.5 mm")))
sketch1.addConstraint(Sketcher.Constraint("DistanceY", 2, 1, 2, 2, Q("7.5 mm")))
sketch1.addConstraint(Sketcher.Constraint("DistanceY", -1, 1, 12, 3, Q("13 mm")))
sketch1.addConstraint(Sketcher.Constraint("DistanceY", 49, 3, -1, 1, Q("13 mm")))
sketch1.addConstraint(Sketcher.Constraint("DistanceY", -1, 1, 54, 3, Q("8 mm")))
sketch1.addConstraint(Sketcher.Constraint("DistanceY", 25, 2, -1, 1, Q("18 mm")))
sketch1.addConstraint(Sketcher.Constraint("DistanceX", -1, 1, 12, 1, Q("2.5 mm")))
sketch1.addConstraint(Sketcher.Constraint("DistanceX", 55, 2, -1, 1, Q("2.5 mm")))
sketch1.addConstraint(Sketcher.Constraint("DistanceX", 1, 1, 1, 2, Q("10 mm")))
sketch1.addConstraint(Sketcher.Constraint("DistanceX", 6, 1, 6, 2, Q("25.9 mm")))
sketch1.addConstraint(Sketcher.Constraint("DistanceX", 11, 2, 11, 1, Q("67.9 mm")))
sketch1.addConstraint(Sketcher.Constraint("DistanceX", 46, 1, 46, 2, Q("2.6 mm")))
sketch1.addConstraint(Sketcher.Constraint("DistanceX", 55, 1, 55, 2, Q("37.5 mm")))
sketch1.addConstraint(Sketcher.Constraint("DistanceX", 5, 3, -1, 1, Q("44 mm")))
sketch1.addConstraint(Sketcher.Constraint("DistanceY", 24, 3, -1, 1, Q("2 mm")))
sketch1.addConstraint(Sketcher.Constraint("DistanceX", -1, 1, 30, 3, Q("16 mm")))
sketch1.addConstraint(Sketcher.Constraint("DistanceY", -1, 1, 53, 3, Q("3 mm")))
sketch1.addConstraint(Sketcher.Constraint("DistanceY", -1, 1, 55, 2, Q("21 mm")))
sketch1.addConstraint(Sketcher.Constraint("DistanceX", 23, 3, -1, 1, Q("67.5 mm")))
sketch1.addConstraint(Sketcher.Constraint("DistanceY", 23, 3, -1, 1, Q("28.5 mm")))
sketch1.addConstraint(Sketcher.Constraint("Distance", 28, Q("44.12 mm")))
sketch1.addConstraint(Sketcher.Constraint("DistanceX", 41, 2, 41, 1, Q("49.829 mm")))
sketch1.addConstraint(Sketcher.Constraint("DistanceY", 30, 3, -1, 1, Q("20.95 mm")))
sketch1.addConstraint(Sketcher.Constraint("DistanceX", -1, 1, 45, 3, Q("67.45 mm")))
sketch1.addConstraint(Sketcher.Constraint("DistanceX", 25, 2, 25, 1, Q("55.7577 mm")))
sketch1.addConstraint(Sketcher.Constraint("DistanceX", 39, 1, 39, 2, Q("3.7717 mm")))
sketch1.addConstraint(Sketcher.Constraint("DistanceY", 56, 2, 56, 1, Q("35.9056 mm")))
pad1 = body.newObject("PartDesign::Pad", "Pad")
pad1.Profile = sketch1
pad1.Length = 5

sketch2 = body.newObject("Sketcher::SketchObject", "Sketch001")
sketch2.AttachmentSupport = (doc.getObject("XY_Plane"), [""])
sketch2.MapMode = "FlatFace"
sketch2.addGeometry(Part.Circle(V(67.5, 8, 0), V(0, 0, 1), 3), False)
sketch2.addGeometry(Part.Circle(V(67.5, 8, 0), V(0, 0, 1), 1.6), False)
sketch2.addGeometry(Part.Circle(V(67.5, -21, 0), V(0, 0, 1), 3), False)
sketch2.addGeometry(Part.Circle(V(67.5, -21, 0), V(0, 0, 1), 1.6), False)
sketch2.addConstraint(Sketcher.Constraint("Coincident", 1, 3, 0, 3))
sketch2.addConstraint(Sketcher.Constraint("Coincident", 3, 3, 2, 3))
sketch2.addConstraint(Sketcher.Constraint("Equal", 0, 2))
sketch2.addConstraint(Sketcher.Constraint("Equal", 1, 3))
sketch2.addConstraint(Sketcher.Constraint("Vertical", 1, 3, 2, 3))
sketch2.addConstraint(Sketcher.Constraint("Diameter", 0, Q("6 mm")))
sketch2.addConstraint(Sketcher.Constraint("Diameter", 1, Q("3.1 mm")))
sketch2.addConstraint(Sketcher.Constraint("DistanceY", -1, 1, 0, 3, Q("8 mm")))
sketch2.addConstraint(Sketcher.Constraint("DistanceY", 2, 3, -1, 1, Q("21 mm")))
sketch2.addConstraint(Sketcher.Constraint("DistanceX", -1, 1, 0, 3, Q("67.5 mm")))
pad2 = body.newObject("PartDesign::Pad", "Pad001")
pad2.Profile = sketch2
pad2.Length = 2

sketch3 = body.newObject("Sketcher::SketchObject", "Sketch002")
sketch3.AttachmentSupport = (doc.getObject("XZ_Plane"), [""])
sketch3.MapMode = "FlatFace"
sketch3.AttachmentOffset = App.Placement(V(0, 0, 21), App.Rotation())
sketch3.addGeometry(Part.Circle(V(-40, 2.5, 0), V(0, 0, 1), 1.2), False)
sketch3.addGeometry(Part.Circle(V(-20, 2.5, 0), V(0, 0, 1), 1.2), False)
sketch3.addConstraint(Sketcher.Constraint("Equal", 0, 1))
sketch3.addConstraint(Sketcher.Constraint("Horizontal", 0, 3, 1, 3))
sketch3.addConstraint(Sketcher.Constraint("Diameter", 0, Q("2.459 mm")))
sketch3.addConstraint(Sketcher.Constraint("DistanceX", 0, 3, -1, 1, Q("40 mm")))
sketch3.addConstraint(Sketcher.Constraint("DistanceX", 1, 3, -1, 1, Q("20 mm")))
sketch3.addConstraint(Sketcher.Constraint("DistanceY", -1, 1, 0, 3, Q("2.5 mm")))
doc.recompute()
hole = body.newObject("PartDesign::Hole", "Hole")
hole.Profile = sketch3
hole.ThreadType = "None"
hole.Diameter = 2.459
hole.DepthType = "Dimension"
hole.Depth = 5
hole.DrillPoint = "Flat"
doc.recompute()

chamfer = body.newObject("PartDesign::Chamfer", "Chamfer")
chamfer.Base = (hole, edges_at(hole, [
    (72.5, -26, 2.5),
    (72.5, 13, 2.5),
    (-72.5, -33.5, 2.5),
    (-72.5, 13, 2.5),
    (-62.5, -33.5, 2.5),
]))
chamfer.Size = 2.5
doc.recompute()

fillet = body.newObject("PartDesign::Fillet", "Fillet")
fillet.Base = (chamfer, edges_at(chamfer, [
    (-6.742, -18, 2.5),
    (-2.5, -14.906, 2.5),
    (2.5, -18, 2.5),
    (2.5, 8, 2.5),
    (6.272, 8, 2.5),
    (16.443, 8, 2.5),
    (62.5, 8, 2.5),
    (62.5, -18, 2.5),
    (52.329, -18, 2.5),
    (-45, 13, 2.5),
    (-62.5, -26, 2.5),
]))
fillet.Radius = 1

sketch4 = body.newObject("Sketcher::SketchObject", "Sketch003")
sketch4.AttachmentSupport = (doc.getObject("XY_Plane"), [""])
sketch4.MapMode = "FlatFace"
sketch4.addGeometry(Part.LineSegment(V(6.3, 8, 0), V(2.5, 8, 0)), False)
sketch4.addGeometry(Part.LineSegment(V(2.5, 8, 0), V(2.5, -18, 0)), False)
sketch4.addGeometry(Part.LineSegment(V(2.5, -18, 0), V(52.3, -18, 0)), False)
sketch4.addGeometry(Part.LineSegment(V(52.3, -18, 0), V(6.3, 8, 0)), False)
sketch4.addGeometry(Part.LineSegment(V(62.5, 8, 0), V(16.4, 8, 0)), False)
sketch4.addGeometry(Part.LineSegment(V(16.4, 8, 0), V(62.5, -18, 0)), False)
sketch4.addGeometry(Part.LineSegment(V(62.5, -18, 0), V(62.5, 8, 0)), False)
sketch4.addGeometry(Part.LineSegment(V(-62.5, 8, 0), V(-62.5, -18, 0)), False)
sketch4.addGeometry(Part.LineSegment(V(-62.5, -18, 0), V(-6.7, -18, 0)), False)
sketch4.addGeometry(Part.LineSegment(V(-6.7, -18, 0), V(-42.4, 8, 0)), False)
sketch4.addGeometry(Part.LineSegment(V(-42.4, 8, 0), V(-62.5, 8, 0)), False)
sketch4.addGeometry(Part.LineSegment(V(-2.5, -14.9, 0), V(-2.5, 21, 0)), False)
sketch4.addGeometry(Part.LineSegment(V(-2.5, 21, 0), V(-40, 21, 0)), False)
sketch4.addGeometry(Part.LineSegment(V(-40, 21, 0), V(-40, 12.4, 0)), False)
sketch4.addGeometry(Part.LineSegment(V(-40, 12.4, 0), V(-2.5, -14.9, 0)), False)
sketch4.addConstraint(Sketcher.Constraint("Coincident", 0, 2, 1, 1))
sketch4.addConstraint(Sketcher.Constraint("Coincident", 1, 2, 2, 1))
sketch4.addConstraint(Sketcher.Constraint("Coincident", 2, 2, 3, 1))
sketch4.addConstraint(Sketcher.Constraint("Coincident", 3, 2, 0, 1))
sketch4.addConstraint(Sketcher.Constraint("Coincident", 4, 2, 5, 1))
sketch4.addConstraint(Sketcher.Constraint("Coincident", 5, 2, 6, 1))
sketch4.addConstraint(Sketcher.Constraint("Coincident", 6, 2, 4, 1))
sketch4.addConstraint(Sketcher.Constraint("Coincident", 7, 2, 8, 1))
sketch4.addConstraint(Sketcher.Constraint("Coincident", 8, 2, 9, 1))
sketch4.addConstraint(Sketcher.Constraint("Coincident", 9, 2, 10, 1))
sketch4.addConstraint(Sketcher.Constraint("Coincident", 10, 2, 7, 1))
sketch4.addConstraint(Sketcher.Constraint("Coincident", 11, 2, 12, 1))
sketch4.addConstraint(Sketcher.Constraint("Coincident", 12, 2, 13, 1))
sketch4.addConstraint(Sketcher.Constraint("Coincident", 13, 2, 14, 1))
sketch4.addConstraint(Sketcher.Constraint("Coincident", 14, 2, 11, 1))
sketch4.addConstraint(Sketcher.Constraint("Horizontal", 0))
sketch4.addConstraint(Sketcher.Constraint("Vertical", 1))
sketch4.addConstraint(Sketcher.Constraint("Horizontal", 2))
sketch4.addConstraint(Sketcher.Constraint("Horizontal", 4))
sketch4.addConstraint(Sketcher.Constraint("Vertical", 6))
sketch4.addConstraint(Sketcher.Constraint("Vertical", 7))
sketch4.addConstraint(Sketcher.Constraint("Horizontal", 8))
sketch4.addConstraint(Sketcher.Constraint("Horizontal", 10))
sketch4.addConstraint(Sketcher.Constraint("Vertical", 11))
sketch4.addConstraint(Sketcher.Constraint("Horizontal", 12))
sketch4.addConstraint(Sketcher.Constraint("Vertical", 13))
sketch4.addConstraint(Sketcher.Constraint("Symmetric", 5, 2, 7, 2, -2))
sketch4.addConstraint(Sketcher.Constraint("Parallel", 3, 5))
sketch4.addConstraint(Sketcher.Constraint("Parallel", 9, 14))
sketch4.addConstraint(Sketcher.Constraint("Horizontal", 3, 2, 4, 2))
sketch4.addConstraint(Sketcher.Constraint("Horizontal", 2, 2, 5, 2))
sketch4.addConstraint(Sketcher.Constraint("Horizontal", 6, 2, 9, 2))
sketch4.addConstraint(Sketcher.Constraint("DistanceY", -1, 1, 0, 2, Q("8 mm")))
sketch4.addConstraint(Sketcher.Constraint("DistanceY", 1, 2, -1, 1, Q("18 mm")))
sketch4.addConstraint(Sketcher.Constraint("DistanceX", 11, 2, 0, 2, Q("5 mm")))
sketch4.addConstraint(Sketcher.Constraint("DistanceY", 0, 2, 11, 2, Q("13 mm")))
sketch4.addConstraint(Sketcher.Constraint("DistanceX", -1, 1, 0, 2, Q("2.5 mm")))
sketch4.addConstraint(Sketcher.Constraint("DistanceX", 12, 2, 12, 1, Q("37.5 mm")))
sketch4.addConstraint(Sketcher.Constraint("DistanceX", 1, 2, 5, 2, Q("60 mm")))
sketch4.addConstraint(Sketcher.Constraint("Distance", 9, Q("44.12 mm")))
sketch4.addConstraint(Sketcher.Constraint("DistanceX", 2, 1, 2, 2, Q("49.829 mm")))
sketch4.addConstraint(Sketcher.Constraint("DistanceX", 0, 2, 0, 1, Q("3.7717 mm")))
sketch4.addConstraint(Sketcher.Constraint("DistanceX", 8, 1, 8, 2, Q("55.7577 mm")))
sketch4.addConstraint(Sketcher.Constraint("DistanceY", 11, 1, 11, 2, Q("35.9056 mm")))
pad3 = body.newObject("PartDesign::Pad", "Pad002")
pad3.Profile = sketch4
pad3.Length = 0.5

sketch5 = body.newObject("Sketcher::SketchObject", "Sketch004")
sketch5.AttachmentSupport = (doc.getObject("XZ_Plane"), [""])
sketch5.MapMode = "FlatFace"
sketch5.AttachmentOffset = App.Placement(V(0, 0, -26), App.Rotation())
sketch5.addGeometry(Part.Circle(V(-36.2, 2.5, 0), V(0, 0, 1), 1.2), False)
sketch5.addGeometry(Part.Circle(V(-6.2, 2.5, 0), V(0, 0, 1), 1.2), False)
sketch5.addConstraint(Sketcher.Constraint("Equal", 0, 1))
sketch5.addConstraint(Sketcher.Constraint("Horizontal", 0, 3, 1, 3))
sketch5.addConstraint(Sketcher.Constraint("Diameter", 0, Q("2.459 mm")))
sketch5.addConstraint(Sketcher.Constraint("DistanceX", 0, 3, 1, 3, Q("30 mm")))
sketch5.addConstraint(Sketcher.Constraint("DistanceY", -1, 1, 0, 3, Q("2.5 mm")))
sketch5.addConstraint(Sketcher.Constraint("DistanceX", 0, 3, -1, 1, Q("36.25 mm")))
doc.recompute()
hole2 = body.newObject("PartDesign::Hole", "Hole001")
hole2.Profile = sketch5
hole2.ThreadType = "None"
hole2.Diameter = 2.459
hole2.DepthType = "Dimension"
hole2.Depth = 5
hole2.DrillPoint = "Flat"
hole2.Reversed = True

doc.recompute()
